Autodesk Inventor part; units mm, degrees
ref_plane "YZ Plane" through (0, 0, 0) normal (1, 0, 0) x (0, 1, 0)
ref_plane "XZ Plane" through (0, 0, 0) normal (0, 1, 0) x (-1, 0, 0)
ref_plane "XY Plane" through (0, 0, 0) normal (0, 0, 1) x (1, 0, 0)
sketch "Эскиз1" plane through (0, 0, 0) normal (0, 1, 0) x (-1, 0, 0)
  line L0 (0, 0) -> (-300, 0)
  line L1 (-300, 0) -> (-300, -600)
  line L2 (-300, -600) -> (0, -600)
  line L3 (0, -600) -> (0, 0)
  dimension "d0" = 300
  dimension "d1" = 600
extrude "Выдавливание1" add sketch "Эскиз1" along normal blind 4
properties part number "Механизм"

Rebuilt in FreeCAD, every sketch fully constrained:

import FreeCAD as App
import Part
import Sketcher
from FreeCAD import Vector
Q = App.Units.Quantity

doc = App.newDocument("Part")
body = doc.addObject("PartDesign::Body", "Body")

sketch1 = doc.addObject("Sketcher::SketchObject", "Sketch")
body.addObject(sketch1)
sketch1.AttachmentSupport = (doc.XZ_Plane, [""])
sketch1.MapMode = "FlatFace"
sketch1.addGeometry([
    Part.LineSegment(Vector(0, -600, 0), Vector(0, 0, 0)),
    Part.LineSegment(Vector(0, 0, 0), Vector(300, 0, 0)),
    Part.LineSegment(Vector(300, 0, 0), Vector(300, -600, 0)),
    Part.LineSegment(Vector(300, -600, 0), Vector(0, -600, 0)),
], False)
sketch1.addConstraint([
    Sketcher.Constraint("Coincident", 0, 2, 1, 1),
    Sketcher.Constraint("Coincident", 1, 2, 2, 1),
    Sketcher.Constraint("Coincident", 2, 2, 3, 1),
    Sketcher.Constraint("Coincident", 3, 2, 0, 1),
    Sketcher.Constraint("Vertical", 0),
    Sketcher.Constraint("Horizontal", 1),
    Sketcher.Constraint("Vertical", 2),
    Sketcher.Constraint("Horizontal", 3),
    Sketcher.Constraint("Coincident", 0, 2, -1, 1),
    Sketcher.Constraint("DistanceX", 1, 1, 1, 2, Q("300 mm")),
    Sketcher.Constraint("DistanceY", 0, 1, 0, 2, Q("600 mm")),
])
pad1 = doc.addObject("PartDesign::Pad", "Pad")
body.addObject(pad1)
pad1.Profile = sketch1
pad1.Length = 4
pad1.Reversed = True

doc.recompute()
